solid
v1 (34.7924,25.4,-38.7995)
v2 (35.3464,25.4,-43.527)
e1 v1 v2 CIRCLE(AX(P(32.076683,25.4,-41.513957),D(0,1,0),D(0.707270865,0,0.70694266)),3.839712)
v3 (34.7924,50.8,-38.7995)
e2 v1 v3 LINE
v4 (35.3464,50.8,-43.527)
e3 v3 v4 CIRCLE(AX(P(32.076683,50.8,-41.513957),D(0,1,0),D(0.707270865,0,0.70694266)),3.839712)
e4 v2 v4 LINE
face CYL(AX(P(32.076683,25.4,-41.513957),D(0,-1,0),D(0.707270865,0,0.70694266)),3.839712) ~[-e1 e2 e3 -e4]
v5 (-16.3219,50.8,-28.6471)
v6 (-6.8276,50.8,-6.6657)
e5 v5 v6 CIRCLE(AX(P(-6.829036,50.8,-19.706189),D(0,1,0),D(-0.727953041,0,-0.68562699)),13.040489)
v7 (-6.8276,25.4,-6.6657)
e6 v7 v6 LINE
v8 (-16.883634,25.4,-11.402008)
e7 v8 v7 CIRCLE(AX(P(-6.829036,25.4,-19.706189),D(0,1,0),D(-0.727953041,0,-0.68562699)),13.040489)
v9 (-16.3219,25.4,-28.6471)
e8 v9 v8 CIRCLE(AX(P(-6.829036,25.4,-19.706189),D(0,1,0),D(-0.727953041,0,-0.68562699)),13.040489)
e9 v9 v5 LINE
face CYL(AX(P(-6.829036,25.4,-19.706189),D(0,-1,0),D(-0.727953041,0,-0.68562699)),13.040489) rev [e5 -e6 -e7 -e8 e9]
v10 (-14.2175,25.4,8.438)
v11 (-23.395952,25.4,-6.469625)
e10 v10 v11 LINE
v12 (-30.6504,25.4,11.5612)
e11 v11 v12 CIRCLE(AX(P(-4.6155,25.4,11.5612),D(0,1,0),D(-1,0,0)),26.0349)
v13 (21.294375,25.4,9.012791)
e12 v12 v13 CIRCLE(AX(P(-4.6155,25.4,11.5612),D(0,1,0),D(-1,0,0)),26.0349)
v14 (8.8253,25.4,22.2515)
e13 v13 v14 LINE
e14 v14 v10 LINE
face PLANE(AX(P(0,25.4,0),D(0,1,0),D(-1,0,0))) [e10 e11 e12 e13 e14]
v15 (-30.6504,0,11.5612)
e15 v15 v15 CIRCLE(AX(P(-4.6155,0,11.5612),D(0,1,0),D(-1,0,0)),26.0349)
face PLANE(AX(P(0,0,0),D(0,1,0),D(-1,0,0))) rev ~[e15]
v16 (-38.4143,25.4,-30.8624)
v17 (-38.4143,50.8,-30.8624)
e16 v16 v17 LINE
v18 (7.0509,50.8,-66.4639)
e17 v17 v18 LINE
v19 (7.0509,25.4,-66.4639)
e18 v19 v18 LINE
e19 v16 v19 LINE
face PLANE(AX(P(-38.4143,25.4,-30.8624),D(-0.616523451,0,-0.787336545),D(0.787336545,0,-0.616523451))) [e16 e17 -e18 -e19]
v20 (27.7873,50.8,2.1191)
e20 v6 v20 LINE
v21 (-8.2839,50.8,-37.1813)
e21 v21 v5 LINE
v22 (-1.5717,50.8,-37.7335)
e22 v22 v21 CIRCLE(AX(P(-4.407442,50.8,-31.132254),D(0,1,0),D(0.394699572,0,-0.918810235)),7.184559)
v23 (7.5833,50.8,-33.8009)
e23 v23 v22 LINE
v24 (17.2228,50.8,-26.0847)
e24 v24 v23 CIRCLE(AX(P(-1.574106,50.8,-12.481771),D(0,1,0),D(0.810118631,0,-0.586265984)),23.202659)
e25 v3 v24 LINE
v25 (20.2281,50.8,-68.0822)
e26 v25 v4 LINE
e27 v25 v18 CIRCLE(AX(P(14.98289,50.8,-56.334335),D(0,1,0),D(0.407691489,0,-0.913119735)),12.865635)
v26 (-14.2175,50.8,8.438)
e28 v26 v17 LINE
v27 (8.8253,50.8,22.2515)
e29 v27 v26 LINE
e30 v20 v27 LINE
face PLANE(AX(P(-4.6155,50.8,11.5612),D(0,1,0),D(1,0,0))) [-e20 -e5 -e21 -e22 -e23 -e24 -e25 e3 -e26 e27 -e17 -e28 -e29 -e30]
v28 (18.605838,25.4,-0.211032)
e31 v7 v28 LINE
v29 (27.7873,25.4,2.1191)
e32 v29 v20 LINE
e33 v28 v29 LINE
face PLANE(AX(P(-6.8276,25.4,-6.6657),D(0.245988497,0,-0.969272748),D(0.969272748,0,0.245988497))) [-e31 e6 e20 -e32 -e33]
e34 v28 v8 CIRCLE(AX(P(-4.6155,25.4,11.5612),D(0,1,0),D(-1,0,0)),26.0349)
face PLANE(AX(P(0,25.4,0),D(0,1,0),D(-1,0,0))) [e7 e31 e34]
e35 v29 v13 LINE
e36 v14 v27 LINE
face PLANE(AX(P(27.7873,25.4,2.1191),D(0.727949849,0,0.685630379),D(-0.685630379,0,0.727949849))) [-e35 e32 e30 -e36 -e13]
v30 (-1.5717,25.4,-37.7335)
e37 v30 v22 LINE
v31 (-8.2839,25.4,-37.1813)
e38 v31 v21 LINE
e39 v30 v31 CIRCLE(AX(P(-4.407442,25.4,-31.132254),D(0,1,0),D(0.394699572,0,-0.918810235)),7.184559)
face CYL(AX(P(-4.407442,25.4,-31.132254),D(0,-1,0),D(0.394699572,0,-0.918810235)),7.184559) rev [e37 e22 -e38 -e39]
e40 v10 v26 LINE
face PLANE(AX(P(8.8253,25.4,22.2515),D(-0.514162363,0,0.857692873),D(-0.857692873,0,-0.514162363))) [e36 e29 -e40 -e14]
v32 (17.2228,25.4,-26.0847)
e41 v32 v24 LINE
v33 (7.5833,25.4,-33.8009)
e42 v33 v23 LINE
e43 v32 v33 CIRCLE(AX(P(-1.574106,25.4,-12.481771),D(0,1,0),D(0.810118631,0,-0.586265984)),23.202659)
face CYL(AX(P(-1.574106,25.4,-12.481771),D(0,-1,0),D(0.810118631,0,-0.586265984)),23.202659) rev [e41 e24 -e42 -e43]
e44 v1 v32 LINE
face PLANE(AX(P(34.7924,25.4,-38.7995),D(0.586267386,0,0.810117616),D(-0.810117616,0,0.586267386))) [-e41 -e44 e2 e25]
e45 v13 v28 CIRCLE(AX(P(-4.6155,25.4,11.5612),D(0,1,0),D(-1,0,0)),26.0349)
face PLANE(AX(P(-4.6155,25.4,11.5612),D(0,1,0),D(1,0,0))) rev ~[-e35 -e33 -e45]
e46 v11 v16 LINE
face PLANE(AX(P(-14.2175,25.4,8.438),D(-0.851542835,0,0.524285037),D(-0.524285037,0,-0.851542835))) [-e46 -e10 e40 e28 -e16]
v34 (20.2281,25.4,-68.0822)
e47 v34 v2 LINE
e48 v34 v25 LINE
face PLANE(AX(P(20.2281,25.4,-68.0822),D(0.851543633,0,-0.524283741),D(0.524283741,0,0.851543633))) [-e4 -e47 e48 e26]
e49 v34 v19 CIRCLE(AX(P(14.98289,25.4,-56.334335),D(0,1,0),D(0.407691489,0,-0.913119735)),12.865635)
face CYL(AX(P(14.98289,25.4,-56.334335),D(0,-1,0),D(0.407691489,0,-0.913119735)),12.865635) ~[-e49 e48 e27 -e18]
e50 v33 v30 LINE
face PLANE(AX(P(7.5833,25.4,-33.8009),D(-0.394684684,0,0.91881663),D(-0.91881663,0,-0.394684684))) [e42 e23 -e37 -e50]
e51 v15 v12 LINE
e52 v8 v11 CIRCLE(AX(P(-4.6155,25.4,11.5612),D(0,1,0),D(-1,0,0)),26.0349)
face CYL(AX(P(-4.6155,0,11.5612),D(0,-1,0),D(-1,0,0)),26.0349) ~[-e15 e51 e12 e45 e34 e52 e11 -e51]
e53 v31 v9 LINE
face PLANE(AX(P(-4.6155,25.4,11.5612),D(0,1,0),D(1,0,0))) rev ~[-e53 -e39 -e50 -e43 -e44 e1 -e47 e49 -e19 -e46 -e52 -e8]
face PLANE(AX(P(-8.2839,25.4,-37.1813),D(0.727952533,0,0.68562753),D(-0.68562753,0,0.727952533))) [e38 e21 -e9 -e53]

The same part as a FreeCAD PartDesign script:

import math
import FreeCAD as App
import Part
import Sketcher
from FreeCAD import Vector
Q = App.Units.Quantity

doc = App.newDocument("Part")
params = doc.addObject("Spreadsheet::Sheet", "Params")
for row, (alias, value) in enumerate([
    ("sketch1_diameter", "2.05 in"),
    ("pad1_length", "1 in"),
    ("sketch2_length", "1.817 in"),
    ("sketch2_length2", "1.406 in"),
    ("sketch2_height", "0.352 in"),
    ("pad2_length", "1 in"),
], start=1):
    params.set(f"A{row}", alias)
    params.set(f"B{row}", "=" + value)
    params.setAlias(f"B{row}", alias)

body = doc.addObject("PartDesign::Body", "Body")

# Sketch on XZ plane
sketch1 = body.newObject("Sketcher::SketchObject", "Sketch")
sketch1.AttachmentSupport = (doc.getObject("XZ_Plane"), [""])
sketch1.MapMode = "FlatFace"
sketch1.addGeometry(Part.Circle(Vector(-4.6155, 11.5612, 0), Vector(0, 0, 1), 26.0349), False)
sketch1.addConstraint(Sketcher.Constraint("Diameter", 0, Q("2.05 in")))
sketch1.addConstraint(Sketcher.Constraint("DistanceX", 0, 3, -1, 1, 4.6155))
sketch1.addConstraint(Sketcher.Constraint("DistanceY", -1, 1, 0, 3, 11.5612))
sketch1.setExpression("Constraints[0]", "Params.sketch1_diameter")
pad1 = body.newObject("PartDesign::Pad", "Pad")
pad1.Profile = sketch1
pad1.setExpression("Length", "Params.pad1_length")
pad1.Reversed = True

# Sketch on XZ plane
sketch2 = body.newObject("Sketcher::SketchObject", "Sketch001")
sketch2.AttachmentSupport = (doc.getObject("XZ_Plane"), [""])
sketch2.MapMode = "FlatFace"
sketch2.AttachmentOffset = App.Placement(Vector(0, 0, -1 * 25.4), App.Rotation())
sketch2.addGeometry(Part.LineSegment(Vector(-38.4143, -30.8624, 0), Vector(-14.2175, 8.438, 0)), False)
sketch2.addGeometry(Part.LineSegment(Vector(-14.2175, 8.438, 0), Vector(8.8253, 22.2515, 0)), False)
sketch2.addGeometry(Part.LineSegment(Vector(8.8253, 22.2515, 0), Vector(27.7873, 2.1191, 0)), False)
sketch2.addGeometry(Part.LineSegment(Vector(27.7873, 2.1191, 0), Vector(-6.8276, -6.6657, 0)), False)
sketch2.addGeometry(Part.ArcOfCircle(Part.Circle(Vector(-6.8291, -19.7062, 0), Vector(0, 0, 1), 13.040435), math.radians(89.993409), math.radians(223.285092)), False)
sketch2.addGeometry(Part.LineSegment(Vector(-16.3219, -28.6471, 0), Vector(-8.2839, -37.1813, 0)), False)
sketch2.addGeometry(Part.ArcOfCircle(Part.Circle(Vector(-4.4075, -31.1319, 0), Vector(0, 0, 1), 7.184907), math.radians(-122.651376), math.radians(-66.753452)), False)
sketch2.addGeometry(Part.LineSegment(Vector(-1.5717, -37.7335, 0), Vector(7.5833, -33.8009, 0)), False)
sketch2.addGeometry(Part.ArcOfCircle(Part.Circle(Vector(-1.5746, -12.4813, 0), Vector(0, 0, 1), 23.203335), math.radians(-66.753909), math.radians(-35.892703)), False)
sketch2.addGeometry(Part.LineSegment(Vector(17.2228, -26.0847, 0), Vector(34.7924, -38.7995, 0)), False)
sketch2.addGeometry(Part.ArcOfCircle(Part.Circle(Vector(32.0768, -41.5139, 0), Vector(0, 0, 1), 3.83959), math.radians(-31.6207), math.radians(44.987338)), False)
sketch2.addGeometry(Part.LineSegment(Vector(35.3464, -43.527, 0), Vector(20.2281, -68.0822, 0)), False)
sketch2.addGeometry(Part.ArcOfCircle(Part.Circle(Vector(14.9829, -56.3344, 0), Vector(0, 0, 1), 12.865571), math.radians(-128.063053), math.radians(-65.940022)), False)
sketch2.addGeometry(Part.LineSegment(Vector(7.0509, -66.4639, 0), Vector(-38.4143, -30.8624, 0)), False)
sketch2.addConstraint(Sketcher.Constraint("Coincident", 0, 2, 1, 1))
sketch2.addConstraint(Sketcher.Constraint("Coincident", 1, 2, 2, 1))
sketch2.addConstraint(Sketcher.Constraint("Coincident", 2, 2, 3, 1))
sketch2.addConstraint(Sketcher.Constraint("Coincident", 3, 2, 4, 1))
sketch2.addConstraint(Sketcher.Constraint("Coincident", 4, 2, 5, 1))
sketch2.addConstraint(Sketcher.Constraint("Coincident", 5, 2, 6, 1))
sketch2.addConstraint(Sketcher.Constraint("Coincident", 6, 2, 7, 1))
sketch2.addConstraint(Sketcher.Constraint("Coincident", 7, 2, 8, 1))
sketch2.addConstraint(Sketcher.Constraint("Coincident", 8, 2, 9, 1))
sketch2.addConstraint(Sketcher.Constraint("Coincident", 9, 2, 10, 2))
sketch2.addConstraint(Sketcher.Constraint("Coincident", 10, 1, 11, 1))
sketch2.addConstraint(Sketcher.Constraint("Coincident", 11, 2, 12, 2))
sketch2.addConstraint(Sketcher.Constraint("Coincident", 12, 1, 13, 1))
sketch2.addConstraint(Sketcher.Constraint("Coincident", 13, 2, 0, 1))
sketch2.addConstraint(Sketcher.Constraint("Radius", 4, Q("0.5134 in")))
sketch2.addConstraint(Sketcher.Constraint("Radius", 6, 7.185))
sketch2.addConstraint(Sketcher.Constraint("Radius", 8, 23.2033))
sketch2.addConstraint(Sketcher.Constraint("Radius", 10, 3.8396))
sketch2.addConstraint(Sketcher.Constraint("Radius", 12, 12.8656))
sketch2.addConstraint(Sketcher.Constraint("Distance", 0, Q("1.817 in")))
sketch2.addConstraint(Sketcher.Constraint("Distance", 3, Q("1.406 in")))
sketch2.addConstraint(Sketcher.Constraint("DistanceX", 8, 3, -1, 1, Q("0.062 in")))
sketch2.addConstraint(Sketcher.Constraint("DistanceX", -1, 1, 2, 2, Q("1.094 in")))
sketch2.addConstraint(Sketcher.Constraint("DistanceX", 12, 3, 10, 3, Q("0.673 in")))
sketch2.addConstraint(Sketcher.Constraint("DistanceY", 4, 2, 4, 3, Q("0.352 in")))
sketch2.addConstraint(Sketcher.Constraint("DistanceY", 5, 2, 4, 2, Q("0.336 in")))
sketch2.addConstraint(Sketcher.Constraint("DistanceY", 11, 2, 10, 3, Q("1.046 in")))
sketch2.addConstraint(Sketcher.Constraint("DistanceY", 8, 3, -1, 1, Q("0.4914 in")))
sketch2.addConstraint(Sketcher.Constraint("DistanceY", 10, 3, -1, 1, Q("1.6344 in")))
sketch2.addConstraint(Sketcher.Constraint("DistanceY", 12, 3, -1, 1, Q("2.2179 in")))
sketch2.addConstraint(Sketcher.Constraint("DistanceY", -1, 1, 0, 2, Q("0.3322 in")))
sketch2.addConstraint(Sketcher.Constraint("DistanceX", 3, 2, -1, 1, Q("0.2688 in")))
sketch2.addConstraint(Sketcher.Constraint("DistanceX", 4, 2, -1, 1, Q("0.6426 in")))
sketch2.addConstraint(Sketcher.Constraint("DistanceX", -1, 1, 10, 1, Q("1.3916 in")))
sketch2.addConstraint(Sketcher.Constraint("DistanceX", -1, 1, 12, 1, Q("0.2776 in")))
sketch2.addConstraint(Sketcher.Constraint("DistanceY", 12, 1, -1, 1, Q("2.6167 in")))
sketch2.addConstraint(Sketcher.Constraint("DistanceX", 6, 3, 10, 3, Q("1.4364 in")))
sketch2.addConstraint(Sketcher.Constraint("DistanceX", 0, 2, 10, 3, Q("1.8226 in")))
sketch2.addConstraint(Sketcher.Constraint("DistanceX", 0, 2, 1, 2, Q("0.9072 in")))
sketch2.addConstraint(Sketcher.Constraint("DistanceY", 6, 3, 1, 2, Q("2.1017 in")))
sketch2.addConstraint(Sketcher.Constraint("DistanceY", 6, 2, 6, 3, Q("0.2599 in")))
sketch2.addConstraint(Sketcher.Constraint("DistanceX", 5, 2, 7, 2, Q("0.6247 in")))
sketch2.addConstraint(Sketcher.Constraint("DistanceY", 7, 2, 4, 3, Q("0.5549 in")))
sketch2.addConstraint(Sketcher.Constraint("DistanceX", 7, 2, 8, 2, Q("0.3795 in")))
sketch2.addConstraint(Sketcher.Constraint("DistanceX", 8, 2, 10, 3, Q("0.5848 in")))
sketch2.addConstraint(Sketcher.Constraint("DistanceX", 12, 3, 9, 2, Q("0.7799 in")))
sketch2.addConstraint(Sketcher.Constraint("DistanceX", 13, 2, 4, 3, Q("1.2435 in")))
sketch2.setExpression("Constraints[19]", "Params.sketch2_length")
sketch2.setExpression("Constraints[20]", "Params.sketch2_length2")
sketch2.setExpression("Constraints[24]", "Params.sketch2_height")
pad2 = body.newObject("PartDesign::Pad", "Pad001")
pad2.Profile = sketch2
pad2.setExpression("Length", "Params.pad2_length")
pad2.Reversed = True

doc.recompute()
